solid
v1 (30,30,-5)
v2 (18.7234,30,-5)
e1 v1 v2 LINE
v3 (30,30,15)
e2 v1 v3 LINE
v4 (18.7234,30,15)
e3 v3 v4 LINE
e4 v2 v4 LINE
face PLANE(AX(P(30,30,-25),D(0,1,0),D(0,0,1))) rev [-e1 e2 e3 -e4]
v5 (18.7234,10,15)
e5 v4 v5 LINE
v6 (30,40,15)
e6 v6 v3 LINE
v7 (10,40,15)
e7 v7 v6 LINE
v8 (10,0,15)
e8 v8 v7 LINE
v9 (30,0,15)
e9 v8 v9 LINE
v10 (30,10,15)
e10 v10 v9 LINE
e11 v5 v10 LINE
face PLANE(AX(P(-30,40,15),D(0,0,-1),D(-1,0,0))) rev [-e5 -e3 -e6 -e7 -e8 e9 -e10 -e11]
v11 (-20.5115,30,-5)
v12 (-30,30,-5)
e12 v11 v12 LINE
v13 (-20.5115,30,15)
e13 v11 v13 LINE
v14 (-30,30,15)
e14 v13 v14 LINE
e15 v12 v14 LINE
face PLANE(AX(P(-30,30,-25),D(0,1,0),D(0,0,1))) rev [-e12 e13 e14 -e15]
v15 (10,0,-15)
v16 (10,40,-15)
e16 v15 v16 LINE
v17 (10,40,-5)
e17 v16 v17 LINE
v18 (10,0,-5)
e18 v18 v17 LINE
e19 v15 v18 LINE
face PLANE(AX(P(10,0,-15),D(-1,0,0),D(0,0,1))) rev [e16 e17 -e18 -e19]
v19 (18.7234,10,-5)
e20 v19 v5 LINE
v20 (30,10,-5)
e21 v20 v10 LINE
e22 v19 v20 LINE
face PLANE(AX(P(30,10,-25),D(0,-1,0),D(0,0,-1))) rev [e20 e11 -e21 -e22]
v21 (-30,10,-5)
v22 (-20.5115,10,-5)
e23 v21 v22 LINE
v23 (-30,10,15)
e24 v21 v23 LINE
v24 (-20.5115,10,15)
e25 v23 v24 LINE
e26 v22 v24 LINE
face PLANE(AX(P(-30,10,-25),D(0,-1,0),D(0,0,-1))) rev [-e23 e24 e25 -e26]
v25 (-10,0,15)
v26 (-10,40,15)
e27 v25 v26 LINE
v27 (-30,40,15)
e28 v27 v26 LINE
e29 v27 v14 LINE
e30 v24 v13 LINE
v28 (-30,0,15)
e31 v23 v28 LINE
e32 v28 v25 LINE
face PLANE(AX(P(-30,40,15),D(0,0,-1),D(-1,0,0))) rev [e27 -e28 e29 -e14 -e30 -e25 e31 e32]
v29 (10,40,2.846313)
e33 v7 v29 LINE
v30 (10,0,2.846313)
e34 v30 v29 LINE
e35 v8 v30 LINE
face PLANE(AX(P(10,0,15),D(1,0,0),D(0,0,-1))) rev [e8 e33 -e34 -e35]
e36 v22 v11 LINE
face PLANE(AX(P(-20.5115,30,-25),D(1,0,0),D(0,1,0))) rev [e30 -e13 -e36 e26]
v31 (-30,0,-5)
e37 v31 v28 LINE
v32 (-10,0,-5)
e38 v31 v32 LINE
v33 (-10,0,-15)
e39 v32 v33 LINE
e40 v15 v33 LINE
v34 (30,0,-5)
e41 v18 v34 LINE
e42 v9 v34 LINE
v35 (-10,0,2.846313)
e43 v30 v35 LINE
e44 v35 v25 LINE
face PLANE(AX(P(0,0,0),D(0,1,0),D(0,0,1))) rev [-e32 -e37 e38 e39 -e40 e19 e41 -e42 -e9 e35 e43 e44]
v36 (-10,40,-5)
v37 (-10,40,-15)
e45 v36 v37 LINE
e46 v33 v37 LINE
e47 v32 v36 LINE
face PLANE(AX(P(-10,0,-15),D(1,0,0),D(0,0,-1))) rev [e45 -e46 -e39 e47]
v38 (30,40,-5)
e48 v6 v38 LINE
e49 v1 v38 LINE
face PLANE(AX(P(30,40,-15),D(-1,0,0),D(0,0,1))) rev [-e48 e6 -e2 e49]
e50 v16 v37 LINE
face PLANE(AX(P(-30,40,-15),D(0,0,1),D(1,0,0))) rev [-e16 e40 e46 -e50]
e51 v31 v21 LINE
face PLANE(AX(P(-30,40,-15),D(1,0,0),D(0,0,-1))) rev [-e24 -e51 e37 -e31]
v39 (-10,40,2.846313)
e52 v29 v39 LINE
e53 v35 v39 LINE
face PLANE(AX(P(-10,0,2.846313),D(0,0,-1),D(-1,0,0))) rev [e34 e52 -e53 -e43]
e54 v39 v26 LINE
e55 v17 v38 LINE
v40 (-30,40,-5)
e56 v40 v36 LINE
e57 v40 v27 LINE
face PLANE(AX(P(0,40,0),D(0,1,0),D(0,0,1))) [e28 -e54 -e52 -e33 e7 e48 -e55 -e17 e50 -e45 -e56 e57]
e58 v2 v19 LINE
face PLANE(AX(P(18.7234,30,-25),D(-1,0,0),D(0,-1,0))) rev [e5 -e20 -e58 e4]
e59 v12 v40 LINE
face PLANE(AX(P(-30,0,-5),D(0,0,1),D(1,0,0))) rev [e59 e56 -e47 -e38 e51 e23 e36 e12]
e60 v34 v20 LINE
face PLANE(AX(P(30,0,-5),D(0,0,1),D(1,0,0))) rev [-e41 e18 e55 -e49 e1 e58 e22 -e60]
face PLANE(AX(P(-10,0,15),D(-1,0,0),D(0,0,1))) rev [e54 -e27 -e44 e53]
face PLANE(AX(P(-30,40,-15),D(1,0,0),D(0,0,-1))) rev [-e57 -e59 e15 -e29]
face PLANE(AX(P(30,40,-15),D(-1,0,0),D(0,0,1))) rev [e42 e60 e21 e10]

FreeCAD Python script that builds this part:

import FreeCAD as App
import Part
import Sketcher

doc = App.newDocument("Part")
body = doc.addObject("PartDesign::Body", "Body")

sketch1 = doc.addObject("Sketcher::SketchObject", "Sketch")
body.addObject(sketch1)
sketch1.AttachmentSupport = (doc.XZ_Plane, [""])
sketch1.MapMode = "FlatFace"
sketch1.addGeometry([
    Part.LineSegment(App.Vector(-30, -15, 0), App.Vector(-30, 15, 0)),
    Part.LineSegment(App.Vector(-30, 15, 0), App.Vector(30, 15, 0)),
    Part.LineSegment(App.Vector(30, 15, 0), App.Vector(30, -15, 0)),
    Part.LineSegment(App.Vector(30, -15, 0), App.Vector(-30, -15, 0)),
], False)
sketch1.addConstraint([
    Sketcher.Constraint("Coincident", 0, 2, 1, 1),
    Sketcher.Constraint("Coincident", 1, 2, 2, 1),
    Sketcher.Constraint("Coincident", 2, 2, 3, 1),
    Sketcher.Constraint("Coincident", 3, 2, 0, 1),
    Sketcher.Constraint("Vertical", 0),
    Sketcher.Constraint("Horizontal", 1),
    Sketcher.Constraint("Vertical", 2),
    Sketcher.Constraint("Horizontal", 3),
    Sketcher.Constraint("Symmetric", 0, 2, 2, 2, -1, 1),
    Sketcher.Constraint("DistanceX", 1, 1, 1, 2, 60.0),
    Sketcher.Constraint("DistanceY", 0, 1, 0, 2, 30.0),
])
pad1 = doc.addObject("PartDesign::Pad", "Pad")
body.addObject(pad1)
pad1.Profile = sketch1
pad1.Length = 40
pad1.Reversed = True

sketch2 = doc.addObject("Sketcher::SketchObject", "Sketch001")
body.addObject(sketch2)
sketch2.AttachmentSupport = (doc.XZ_Plane, [""])
sketch2.MapMode = "FlatFace"
sketch2.AttachmentOffset = App.Placement(App.Vector(0, 0, -40), App.Rotation())
sketch2.addGeometry([
    Part.LineSegment(App.Vector(-10, 3, 0), App.Vector(-10, 15, 0)),
    Part.LineSegment(App.Vector(-10, 15, 0), App.Vector(10, 15, 0)),
    Part.LineSegment(App.Vector(10, 15, 0), App.Vector(10, 3, 0)),
    Part.LineSegment(App.Vector(10, 3, 0), App.Vector(-10, 3, 0)),
], False)
sketch2.addConstraint([
    Sketcher.Constraint("Coincident", 0, 2, 1, 1),
    Sketcher.Constraint("Coincident", 1, 2, 2, 1),
    Sketcher.Constraint("Coincident", 2, 2, 3, 1),
    Sketcher.Constraint("Coincident", 3, 2, 0, 1),
    Sketcher.Constraint("Vertical", 0),
    Sketcher.Constraint("Horizontal", 1),
    Sketcher.Constraint("Vertical", 2),
    Sketcher.Constraint("Horizontal", 3),
    Sketcher.Constraint("DistanceX", 1, 1, 1, 2, 20.0),
    Sketcher.Constraint("DistanceX", 0, 2, -1, 1, 10.0),
    Sketcher.Constraint("DistanceY", -1, 1, 0, 2, 15.0),
    Sketcher.Constraint("DistanceY", 0, 1, 0, 2, 12.153687),
])
pocket1 = doc.addObject("PartDesign::Pocket", "Pocket")
body.addObject(pocket1)
pocket1.Profile = sketch2
pocket1.Type = "ThroughAll"
pocket1.Reversed = True

sketch3 = doc.addObject("Sketcher::SketchObject", "Sketch002")
body.addObject(sketch3)
sketch3.AttachmentSupport = (doc.XZ_Plane, [""])
sketch3.MapMode = "FlatFace"
sketch3.AttachmentOffset = App.Placement(App.Vector(0, 0, -40), App.Rotation())
sketch3.addGeometry([
    Part.LineSegment(App.Vector(-30, -15, 0), App.Vector(-30, -5, 0)),
    Part.LineSegment(App.Vector(-30, -5, 0), App.Vector(-10, -5, 0)),
    Part.LineSegment(App.Vector(-10, -5, 0), App.Vector(-10, -15, 0)),
    Part.LineSegment(App.Vector(-10, -15, 0), App.Vector(-30, -15, 0)),
], False)
sketch3.addConstraint([
    Sketcher.Constraint("Coincident", 0, 2, 1, 1),
    Sketcher.Constraint("Coincident", 1, 2, 2, 1),
    Sketcher.Constraint("Coincident", 2, 2, 3, 1),
    Sketcher.Constraint("Coincident", 3, 2, 0, 1),
    Sketcher.Constraint("Vertical", 0),
    Sketcher.Constraint("Horizontal", 1),
    Sketcher.Constraint("Vertical", 2),
    Sketcher.Constraint("Horizontal", 3),
    Sketcher.Constraint("DistanceX", 1, 1, 1, 2, 20.0),
    Sketcher.Constraint("DistanceY", 0, 1, 0, 2, 10.0),
    Sketcher.Constraint("DistanceX", 0, 2, -1, 1, 30.0),
    Sketcher.Constraint("DistanceY", 0, 2, -1, 1, 5.0),
])
pocket2 = doc.addObject("PartDesign::Pocket", "Pocket001")
body.addObject(pocket2)
pocket2.Profile = sketch3
pocket2.Type = "ThroughAll"
pocket2.Reversed = True

sketch4 = doc.addObject("Sketcher::SketchObject", "Sketch003")
body.addObject(sketch4)
sketch4.AttachmentSupport = (doc.XZ_Plane, [""])
sketch4.MapMode = "FlatFace"
sketch4.AttachmentOffset = App.Placement(App.Vector(0, 0, -40), App.Rotation())
sketch4.addGeometry([
    Part.LineSegment(App.Vector(10, -15, 0), App.Vector(10, -5, 0)),
    Part.LineSegment(App.Vector(10, -5, 0), App.Vector(30, -5, 0)),
    Part.LineSegment(App.Vector(30, -5, 0), App.Vector(30, -15, 0)),
    Part.LineSegment(App.Vector(30, -15, 0), App.Vector(10, -15, 0)),
], False)
sketch4.addConstraint([
    Sketcher.Constraint("Coincident", 0, 2, 1, 1),
    Sketcher.Constraint("Coincident", 1, 2, 2, 1),
    Sketcher.Constraint("Coincident", 2, 2, 3, 1),
    Sketcher.Constraint("Coincident", 3, 2, 0, 1),
    Sketcher.Constraint("Vertical", 0),
    Sketcher.Constraint("Horizontal", 1),
    Sketcher.Constraint("Vertical", 2),
    Sketcher.Constraint("Horizontal", 3),
    Sketcher.Constraint("DistanceX", 1, 1, 1, 2, 20.0),
    Sketcher.Constraint("DistanceY", 0, 1, 0, 2, 10.0),
    Sketcher.Constraint("DistanceX", -1, 1, 0, 2, 10.0),
    Sketcher.Constraint("DistanceY", 0, 2, -1, 1, 5.0),
])
pocket3 = doc.addObject("PartDesign::Pocket", "Pocket002")
body.addObject(pocket3)
pocket3.Profile = sketch4
pocket3.Type = "ThroughAll"
pocket3.Reversed = True

sketch5 = doc.addObject("Sketcher::SketchObject", "Sketch004")
body.addObject(sketch5)
sketch5.AttachmentSupport = (doc.XY_Plane, [""])
sketch5.MapMode = "FlatFace"
sketch5.AttachmentOffset = App.Placement(App.Vector(0, 0, 15), App.Rotation())
sketch5.addGeometry([
    Part.LineSegment(App.Vector(19, 30, 0), App.Vector(19, 10, 0)),
    Part.LineSegment(App.Vector(19, 10, 0), App.Vector(30, 10, 0)),
    Part.LineSegment(App.Vector(30, 10, 0), App.Vector(30, 30, 0)),
    Part.LineSegment(App.Vector(30, 30, 0), App.Vector(19, 30, 0)),
], False)
sketch5.addConstraint([
    Sketcher.Constraint("Coincident", 0, 2, 1, 1),
    Sketcher.Constraint("Coincident", 1, 2, 2, 1),
    Sketcher.Constraint("Coincident", 2, 2, 3, 1),
    Sketcher.Constraint("Coincident", 3, 2, 0, 1),
    Sketcher.Constraint("Vertical", 0),
    Sketcher.Constraint("Horizontal", 1),
    Sketcher.Constraint("Vertical", 2),
    Sketcher.Constraint("Horizontal", 3),
    Sketcher.Constraint("DistanceY", 0, 2, 0, 1, 20.0),
    Sketcher.Constraint("DistanceY", -1, 1, 0, 2, 10.0),
    Sketcher.Constraint("DistanceX", -1, 1, 1, 2, 30.0),
    Sketcher.Constraint("DistanceX", 1, 1, 1, 2, 11.2766),
])
pocket4 = doc.addObject("PartDesign::Pocket", "Pocket003")
body.addObject(pocket4)
pocket4.Profile = sketch5
pocket4.Length = 40

sketch6 = doc.addObject("Sketcher::SketchObject", "Sketch005")
body.addObject(sketch6)
sketch6.AttachmentSupport = (doc.XY_Plane, [""])
sketch6.MapMode = "FlatFace"
sketch6.AttachmentOffset = App.Placement(App.Vector(0, 0, 15), App.Rotation())
sketch6.addGeometry([
    Part.LineSegment(App.Vector(-30, 30, 0), App.Vector(-30, 10, 0)),
    Part.LineSegment(App.Vector(-30, 10, 0), App.Vector(-21, 10, 0)),
    Part.LineSegment(App.Vector(-21, 10, 0), App.Vector(-21, 30, 0)),
    Part.LineSegment(App.Vector(-21, 30, 0), App.Vector(-30, 30, 0)),
], False)
sketch6.addConstraint([
    Sketcher.Constraint("Coincident", 0, 2, 1, 1),
    Sketcher.Constraint("Coincident", 1, 2, 2, 1),
    Sketcher.Constraint("Coincident", 2, 2, 3, 1),
    Sketcher.Constraint("Coincident", 3, 2, 0, 1),
    Sketcher.Constraint("Vertical", 0),
    Sketcher.Constraint("Horizontal", 1),
    Sketcher.Constraint("Vertical", 2),
    Sketcher.Constraint("Horizontal", 3),
    Sketcher.Constraint("DistanceY", 0, 2, 0, 1, 20.0),
    Sketcher.Constraint("DistanceX", 0, 2, -1, 1, 30.0),
    Sketcher.Constraint("DistanceY", -1, 1, 0, 2, 10.0),
    Sketcher.Constraint("DistanceX", 1, 1, 1, 2, 9.4885),
])
pocket5 = doc.addObject("PartDesign::Pocket", "Pocket004")
body.addObject(pocket5)
pocket5.Profile = sketch6
pocket5.Length = 40

doc.recompute()
